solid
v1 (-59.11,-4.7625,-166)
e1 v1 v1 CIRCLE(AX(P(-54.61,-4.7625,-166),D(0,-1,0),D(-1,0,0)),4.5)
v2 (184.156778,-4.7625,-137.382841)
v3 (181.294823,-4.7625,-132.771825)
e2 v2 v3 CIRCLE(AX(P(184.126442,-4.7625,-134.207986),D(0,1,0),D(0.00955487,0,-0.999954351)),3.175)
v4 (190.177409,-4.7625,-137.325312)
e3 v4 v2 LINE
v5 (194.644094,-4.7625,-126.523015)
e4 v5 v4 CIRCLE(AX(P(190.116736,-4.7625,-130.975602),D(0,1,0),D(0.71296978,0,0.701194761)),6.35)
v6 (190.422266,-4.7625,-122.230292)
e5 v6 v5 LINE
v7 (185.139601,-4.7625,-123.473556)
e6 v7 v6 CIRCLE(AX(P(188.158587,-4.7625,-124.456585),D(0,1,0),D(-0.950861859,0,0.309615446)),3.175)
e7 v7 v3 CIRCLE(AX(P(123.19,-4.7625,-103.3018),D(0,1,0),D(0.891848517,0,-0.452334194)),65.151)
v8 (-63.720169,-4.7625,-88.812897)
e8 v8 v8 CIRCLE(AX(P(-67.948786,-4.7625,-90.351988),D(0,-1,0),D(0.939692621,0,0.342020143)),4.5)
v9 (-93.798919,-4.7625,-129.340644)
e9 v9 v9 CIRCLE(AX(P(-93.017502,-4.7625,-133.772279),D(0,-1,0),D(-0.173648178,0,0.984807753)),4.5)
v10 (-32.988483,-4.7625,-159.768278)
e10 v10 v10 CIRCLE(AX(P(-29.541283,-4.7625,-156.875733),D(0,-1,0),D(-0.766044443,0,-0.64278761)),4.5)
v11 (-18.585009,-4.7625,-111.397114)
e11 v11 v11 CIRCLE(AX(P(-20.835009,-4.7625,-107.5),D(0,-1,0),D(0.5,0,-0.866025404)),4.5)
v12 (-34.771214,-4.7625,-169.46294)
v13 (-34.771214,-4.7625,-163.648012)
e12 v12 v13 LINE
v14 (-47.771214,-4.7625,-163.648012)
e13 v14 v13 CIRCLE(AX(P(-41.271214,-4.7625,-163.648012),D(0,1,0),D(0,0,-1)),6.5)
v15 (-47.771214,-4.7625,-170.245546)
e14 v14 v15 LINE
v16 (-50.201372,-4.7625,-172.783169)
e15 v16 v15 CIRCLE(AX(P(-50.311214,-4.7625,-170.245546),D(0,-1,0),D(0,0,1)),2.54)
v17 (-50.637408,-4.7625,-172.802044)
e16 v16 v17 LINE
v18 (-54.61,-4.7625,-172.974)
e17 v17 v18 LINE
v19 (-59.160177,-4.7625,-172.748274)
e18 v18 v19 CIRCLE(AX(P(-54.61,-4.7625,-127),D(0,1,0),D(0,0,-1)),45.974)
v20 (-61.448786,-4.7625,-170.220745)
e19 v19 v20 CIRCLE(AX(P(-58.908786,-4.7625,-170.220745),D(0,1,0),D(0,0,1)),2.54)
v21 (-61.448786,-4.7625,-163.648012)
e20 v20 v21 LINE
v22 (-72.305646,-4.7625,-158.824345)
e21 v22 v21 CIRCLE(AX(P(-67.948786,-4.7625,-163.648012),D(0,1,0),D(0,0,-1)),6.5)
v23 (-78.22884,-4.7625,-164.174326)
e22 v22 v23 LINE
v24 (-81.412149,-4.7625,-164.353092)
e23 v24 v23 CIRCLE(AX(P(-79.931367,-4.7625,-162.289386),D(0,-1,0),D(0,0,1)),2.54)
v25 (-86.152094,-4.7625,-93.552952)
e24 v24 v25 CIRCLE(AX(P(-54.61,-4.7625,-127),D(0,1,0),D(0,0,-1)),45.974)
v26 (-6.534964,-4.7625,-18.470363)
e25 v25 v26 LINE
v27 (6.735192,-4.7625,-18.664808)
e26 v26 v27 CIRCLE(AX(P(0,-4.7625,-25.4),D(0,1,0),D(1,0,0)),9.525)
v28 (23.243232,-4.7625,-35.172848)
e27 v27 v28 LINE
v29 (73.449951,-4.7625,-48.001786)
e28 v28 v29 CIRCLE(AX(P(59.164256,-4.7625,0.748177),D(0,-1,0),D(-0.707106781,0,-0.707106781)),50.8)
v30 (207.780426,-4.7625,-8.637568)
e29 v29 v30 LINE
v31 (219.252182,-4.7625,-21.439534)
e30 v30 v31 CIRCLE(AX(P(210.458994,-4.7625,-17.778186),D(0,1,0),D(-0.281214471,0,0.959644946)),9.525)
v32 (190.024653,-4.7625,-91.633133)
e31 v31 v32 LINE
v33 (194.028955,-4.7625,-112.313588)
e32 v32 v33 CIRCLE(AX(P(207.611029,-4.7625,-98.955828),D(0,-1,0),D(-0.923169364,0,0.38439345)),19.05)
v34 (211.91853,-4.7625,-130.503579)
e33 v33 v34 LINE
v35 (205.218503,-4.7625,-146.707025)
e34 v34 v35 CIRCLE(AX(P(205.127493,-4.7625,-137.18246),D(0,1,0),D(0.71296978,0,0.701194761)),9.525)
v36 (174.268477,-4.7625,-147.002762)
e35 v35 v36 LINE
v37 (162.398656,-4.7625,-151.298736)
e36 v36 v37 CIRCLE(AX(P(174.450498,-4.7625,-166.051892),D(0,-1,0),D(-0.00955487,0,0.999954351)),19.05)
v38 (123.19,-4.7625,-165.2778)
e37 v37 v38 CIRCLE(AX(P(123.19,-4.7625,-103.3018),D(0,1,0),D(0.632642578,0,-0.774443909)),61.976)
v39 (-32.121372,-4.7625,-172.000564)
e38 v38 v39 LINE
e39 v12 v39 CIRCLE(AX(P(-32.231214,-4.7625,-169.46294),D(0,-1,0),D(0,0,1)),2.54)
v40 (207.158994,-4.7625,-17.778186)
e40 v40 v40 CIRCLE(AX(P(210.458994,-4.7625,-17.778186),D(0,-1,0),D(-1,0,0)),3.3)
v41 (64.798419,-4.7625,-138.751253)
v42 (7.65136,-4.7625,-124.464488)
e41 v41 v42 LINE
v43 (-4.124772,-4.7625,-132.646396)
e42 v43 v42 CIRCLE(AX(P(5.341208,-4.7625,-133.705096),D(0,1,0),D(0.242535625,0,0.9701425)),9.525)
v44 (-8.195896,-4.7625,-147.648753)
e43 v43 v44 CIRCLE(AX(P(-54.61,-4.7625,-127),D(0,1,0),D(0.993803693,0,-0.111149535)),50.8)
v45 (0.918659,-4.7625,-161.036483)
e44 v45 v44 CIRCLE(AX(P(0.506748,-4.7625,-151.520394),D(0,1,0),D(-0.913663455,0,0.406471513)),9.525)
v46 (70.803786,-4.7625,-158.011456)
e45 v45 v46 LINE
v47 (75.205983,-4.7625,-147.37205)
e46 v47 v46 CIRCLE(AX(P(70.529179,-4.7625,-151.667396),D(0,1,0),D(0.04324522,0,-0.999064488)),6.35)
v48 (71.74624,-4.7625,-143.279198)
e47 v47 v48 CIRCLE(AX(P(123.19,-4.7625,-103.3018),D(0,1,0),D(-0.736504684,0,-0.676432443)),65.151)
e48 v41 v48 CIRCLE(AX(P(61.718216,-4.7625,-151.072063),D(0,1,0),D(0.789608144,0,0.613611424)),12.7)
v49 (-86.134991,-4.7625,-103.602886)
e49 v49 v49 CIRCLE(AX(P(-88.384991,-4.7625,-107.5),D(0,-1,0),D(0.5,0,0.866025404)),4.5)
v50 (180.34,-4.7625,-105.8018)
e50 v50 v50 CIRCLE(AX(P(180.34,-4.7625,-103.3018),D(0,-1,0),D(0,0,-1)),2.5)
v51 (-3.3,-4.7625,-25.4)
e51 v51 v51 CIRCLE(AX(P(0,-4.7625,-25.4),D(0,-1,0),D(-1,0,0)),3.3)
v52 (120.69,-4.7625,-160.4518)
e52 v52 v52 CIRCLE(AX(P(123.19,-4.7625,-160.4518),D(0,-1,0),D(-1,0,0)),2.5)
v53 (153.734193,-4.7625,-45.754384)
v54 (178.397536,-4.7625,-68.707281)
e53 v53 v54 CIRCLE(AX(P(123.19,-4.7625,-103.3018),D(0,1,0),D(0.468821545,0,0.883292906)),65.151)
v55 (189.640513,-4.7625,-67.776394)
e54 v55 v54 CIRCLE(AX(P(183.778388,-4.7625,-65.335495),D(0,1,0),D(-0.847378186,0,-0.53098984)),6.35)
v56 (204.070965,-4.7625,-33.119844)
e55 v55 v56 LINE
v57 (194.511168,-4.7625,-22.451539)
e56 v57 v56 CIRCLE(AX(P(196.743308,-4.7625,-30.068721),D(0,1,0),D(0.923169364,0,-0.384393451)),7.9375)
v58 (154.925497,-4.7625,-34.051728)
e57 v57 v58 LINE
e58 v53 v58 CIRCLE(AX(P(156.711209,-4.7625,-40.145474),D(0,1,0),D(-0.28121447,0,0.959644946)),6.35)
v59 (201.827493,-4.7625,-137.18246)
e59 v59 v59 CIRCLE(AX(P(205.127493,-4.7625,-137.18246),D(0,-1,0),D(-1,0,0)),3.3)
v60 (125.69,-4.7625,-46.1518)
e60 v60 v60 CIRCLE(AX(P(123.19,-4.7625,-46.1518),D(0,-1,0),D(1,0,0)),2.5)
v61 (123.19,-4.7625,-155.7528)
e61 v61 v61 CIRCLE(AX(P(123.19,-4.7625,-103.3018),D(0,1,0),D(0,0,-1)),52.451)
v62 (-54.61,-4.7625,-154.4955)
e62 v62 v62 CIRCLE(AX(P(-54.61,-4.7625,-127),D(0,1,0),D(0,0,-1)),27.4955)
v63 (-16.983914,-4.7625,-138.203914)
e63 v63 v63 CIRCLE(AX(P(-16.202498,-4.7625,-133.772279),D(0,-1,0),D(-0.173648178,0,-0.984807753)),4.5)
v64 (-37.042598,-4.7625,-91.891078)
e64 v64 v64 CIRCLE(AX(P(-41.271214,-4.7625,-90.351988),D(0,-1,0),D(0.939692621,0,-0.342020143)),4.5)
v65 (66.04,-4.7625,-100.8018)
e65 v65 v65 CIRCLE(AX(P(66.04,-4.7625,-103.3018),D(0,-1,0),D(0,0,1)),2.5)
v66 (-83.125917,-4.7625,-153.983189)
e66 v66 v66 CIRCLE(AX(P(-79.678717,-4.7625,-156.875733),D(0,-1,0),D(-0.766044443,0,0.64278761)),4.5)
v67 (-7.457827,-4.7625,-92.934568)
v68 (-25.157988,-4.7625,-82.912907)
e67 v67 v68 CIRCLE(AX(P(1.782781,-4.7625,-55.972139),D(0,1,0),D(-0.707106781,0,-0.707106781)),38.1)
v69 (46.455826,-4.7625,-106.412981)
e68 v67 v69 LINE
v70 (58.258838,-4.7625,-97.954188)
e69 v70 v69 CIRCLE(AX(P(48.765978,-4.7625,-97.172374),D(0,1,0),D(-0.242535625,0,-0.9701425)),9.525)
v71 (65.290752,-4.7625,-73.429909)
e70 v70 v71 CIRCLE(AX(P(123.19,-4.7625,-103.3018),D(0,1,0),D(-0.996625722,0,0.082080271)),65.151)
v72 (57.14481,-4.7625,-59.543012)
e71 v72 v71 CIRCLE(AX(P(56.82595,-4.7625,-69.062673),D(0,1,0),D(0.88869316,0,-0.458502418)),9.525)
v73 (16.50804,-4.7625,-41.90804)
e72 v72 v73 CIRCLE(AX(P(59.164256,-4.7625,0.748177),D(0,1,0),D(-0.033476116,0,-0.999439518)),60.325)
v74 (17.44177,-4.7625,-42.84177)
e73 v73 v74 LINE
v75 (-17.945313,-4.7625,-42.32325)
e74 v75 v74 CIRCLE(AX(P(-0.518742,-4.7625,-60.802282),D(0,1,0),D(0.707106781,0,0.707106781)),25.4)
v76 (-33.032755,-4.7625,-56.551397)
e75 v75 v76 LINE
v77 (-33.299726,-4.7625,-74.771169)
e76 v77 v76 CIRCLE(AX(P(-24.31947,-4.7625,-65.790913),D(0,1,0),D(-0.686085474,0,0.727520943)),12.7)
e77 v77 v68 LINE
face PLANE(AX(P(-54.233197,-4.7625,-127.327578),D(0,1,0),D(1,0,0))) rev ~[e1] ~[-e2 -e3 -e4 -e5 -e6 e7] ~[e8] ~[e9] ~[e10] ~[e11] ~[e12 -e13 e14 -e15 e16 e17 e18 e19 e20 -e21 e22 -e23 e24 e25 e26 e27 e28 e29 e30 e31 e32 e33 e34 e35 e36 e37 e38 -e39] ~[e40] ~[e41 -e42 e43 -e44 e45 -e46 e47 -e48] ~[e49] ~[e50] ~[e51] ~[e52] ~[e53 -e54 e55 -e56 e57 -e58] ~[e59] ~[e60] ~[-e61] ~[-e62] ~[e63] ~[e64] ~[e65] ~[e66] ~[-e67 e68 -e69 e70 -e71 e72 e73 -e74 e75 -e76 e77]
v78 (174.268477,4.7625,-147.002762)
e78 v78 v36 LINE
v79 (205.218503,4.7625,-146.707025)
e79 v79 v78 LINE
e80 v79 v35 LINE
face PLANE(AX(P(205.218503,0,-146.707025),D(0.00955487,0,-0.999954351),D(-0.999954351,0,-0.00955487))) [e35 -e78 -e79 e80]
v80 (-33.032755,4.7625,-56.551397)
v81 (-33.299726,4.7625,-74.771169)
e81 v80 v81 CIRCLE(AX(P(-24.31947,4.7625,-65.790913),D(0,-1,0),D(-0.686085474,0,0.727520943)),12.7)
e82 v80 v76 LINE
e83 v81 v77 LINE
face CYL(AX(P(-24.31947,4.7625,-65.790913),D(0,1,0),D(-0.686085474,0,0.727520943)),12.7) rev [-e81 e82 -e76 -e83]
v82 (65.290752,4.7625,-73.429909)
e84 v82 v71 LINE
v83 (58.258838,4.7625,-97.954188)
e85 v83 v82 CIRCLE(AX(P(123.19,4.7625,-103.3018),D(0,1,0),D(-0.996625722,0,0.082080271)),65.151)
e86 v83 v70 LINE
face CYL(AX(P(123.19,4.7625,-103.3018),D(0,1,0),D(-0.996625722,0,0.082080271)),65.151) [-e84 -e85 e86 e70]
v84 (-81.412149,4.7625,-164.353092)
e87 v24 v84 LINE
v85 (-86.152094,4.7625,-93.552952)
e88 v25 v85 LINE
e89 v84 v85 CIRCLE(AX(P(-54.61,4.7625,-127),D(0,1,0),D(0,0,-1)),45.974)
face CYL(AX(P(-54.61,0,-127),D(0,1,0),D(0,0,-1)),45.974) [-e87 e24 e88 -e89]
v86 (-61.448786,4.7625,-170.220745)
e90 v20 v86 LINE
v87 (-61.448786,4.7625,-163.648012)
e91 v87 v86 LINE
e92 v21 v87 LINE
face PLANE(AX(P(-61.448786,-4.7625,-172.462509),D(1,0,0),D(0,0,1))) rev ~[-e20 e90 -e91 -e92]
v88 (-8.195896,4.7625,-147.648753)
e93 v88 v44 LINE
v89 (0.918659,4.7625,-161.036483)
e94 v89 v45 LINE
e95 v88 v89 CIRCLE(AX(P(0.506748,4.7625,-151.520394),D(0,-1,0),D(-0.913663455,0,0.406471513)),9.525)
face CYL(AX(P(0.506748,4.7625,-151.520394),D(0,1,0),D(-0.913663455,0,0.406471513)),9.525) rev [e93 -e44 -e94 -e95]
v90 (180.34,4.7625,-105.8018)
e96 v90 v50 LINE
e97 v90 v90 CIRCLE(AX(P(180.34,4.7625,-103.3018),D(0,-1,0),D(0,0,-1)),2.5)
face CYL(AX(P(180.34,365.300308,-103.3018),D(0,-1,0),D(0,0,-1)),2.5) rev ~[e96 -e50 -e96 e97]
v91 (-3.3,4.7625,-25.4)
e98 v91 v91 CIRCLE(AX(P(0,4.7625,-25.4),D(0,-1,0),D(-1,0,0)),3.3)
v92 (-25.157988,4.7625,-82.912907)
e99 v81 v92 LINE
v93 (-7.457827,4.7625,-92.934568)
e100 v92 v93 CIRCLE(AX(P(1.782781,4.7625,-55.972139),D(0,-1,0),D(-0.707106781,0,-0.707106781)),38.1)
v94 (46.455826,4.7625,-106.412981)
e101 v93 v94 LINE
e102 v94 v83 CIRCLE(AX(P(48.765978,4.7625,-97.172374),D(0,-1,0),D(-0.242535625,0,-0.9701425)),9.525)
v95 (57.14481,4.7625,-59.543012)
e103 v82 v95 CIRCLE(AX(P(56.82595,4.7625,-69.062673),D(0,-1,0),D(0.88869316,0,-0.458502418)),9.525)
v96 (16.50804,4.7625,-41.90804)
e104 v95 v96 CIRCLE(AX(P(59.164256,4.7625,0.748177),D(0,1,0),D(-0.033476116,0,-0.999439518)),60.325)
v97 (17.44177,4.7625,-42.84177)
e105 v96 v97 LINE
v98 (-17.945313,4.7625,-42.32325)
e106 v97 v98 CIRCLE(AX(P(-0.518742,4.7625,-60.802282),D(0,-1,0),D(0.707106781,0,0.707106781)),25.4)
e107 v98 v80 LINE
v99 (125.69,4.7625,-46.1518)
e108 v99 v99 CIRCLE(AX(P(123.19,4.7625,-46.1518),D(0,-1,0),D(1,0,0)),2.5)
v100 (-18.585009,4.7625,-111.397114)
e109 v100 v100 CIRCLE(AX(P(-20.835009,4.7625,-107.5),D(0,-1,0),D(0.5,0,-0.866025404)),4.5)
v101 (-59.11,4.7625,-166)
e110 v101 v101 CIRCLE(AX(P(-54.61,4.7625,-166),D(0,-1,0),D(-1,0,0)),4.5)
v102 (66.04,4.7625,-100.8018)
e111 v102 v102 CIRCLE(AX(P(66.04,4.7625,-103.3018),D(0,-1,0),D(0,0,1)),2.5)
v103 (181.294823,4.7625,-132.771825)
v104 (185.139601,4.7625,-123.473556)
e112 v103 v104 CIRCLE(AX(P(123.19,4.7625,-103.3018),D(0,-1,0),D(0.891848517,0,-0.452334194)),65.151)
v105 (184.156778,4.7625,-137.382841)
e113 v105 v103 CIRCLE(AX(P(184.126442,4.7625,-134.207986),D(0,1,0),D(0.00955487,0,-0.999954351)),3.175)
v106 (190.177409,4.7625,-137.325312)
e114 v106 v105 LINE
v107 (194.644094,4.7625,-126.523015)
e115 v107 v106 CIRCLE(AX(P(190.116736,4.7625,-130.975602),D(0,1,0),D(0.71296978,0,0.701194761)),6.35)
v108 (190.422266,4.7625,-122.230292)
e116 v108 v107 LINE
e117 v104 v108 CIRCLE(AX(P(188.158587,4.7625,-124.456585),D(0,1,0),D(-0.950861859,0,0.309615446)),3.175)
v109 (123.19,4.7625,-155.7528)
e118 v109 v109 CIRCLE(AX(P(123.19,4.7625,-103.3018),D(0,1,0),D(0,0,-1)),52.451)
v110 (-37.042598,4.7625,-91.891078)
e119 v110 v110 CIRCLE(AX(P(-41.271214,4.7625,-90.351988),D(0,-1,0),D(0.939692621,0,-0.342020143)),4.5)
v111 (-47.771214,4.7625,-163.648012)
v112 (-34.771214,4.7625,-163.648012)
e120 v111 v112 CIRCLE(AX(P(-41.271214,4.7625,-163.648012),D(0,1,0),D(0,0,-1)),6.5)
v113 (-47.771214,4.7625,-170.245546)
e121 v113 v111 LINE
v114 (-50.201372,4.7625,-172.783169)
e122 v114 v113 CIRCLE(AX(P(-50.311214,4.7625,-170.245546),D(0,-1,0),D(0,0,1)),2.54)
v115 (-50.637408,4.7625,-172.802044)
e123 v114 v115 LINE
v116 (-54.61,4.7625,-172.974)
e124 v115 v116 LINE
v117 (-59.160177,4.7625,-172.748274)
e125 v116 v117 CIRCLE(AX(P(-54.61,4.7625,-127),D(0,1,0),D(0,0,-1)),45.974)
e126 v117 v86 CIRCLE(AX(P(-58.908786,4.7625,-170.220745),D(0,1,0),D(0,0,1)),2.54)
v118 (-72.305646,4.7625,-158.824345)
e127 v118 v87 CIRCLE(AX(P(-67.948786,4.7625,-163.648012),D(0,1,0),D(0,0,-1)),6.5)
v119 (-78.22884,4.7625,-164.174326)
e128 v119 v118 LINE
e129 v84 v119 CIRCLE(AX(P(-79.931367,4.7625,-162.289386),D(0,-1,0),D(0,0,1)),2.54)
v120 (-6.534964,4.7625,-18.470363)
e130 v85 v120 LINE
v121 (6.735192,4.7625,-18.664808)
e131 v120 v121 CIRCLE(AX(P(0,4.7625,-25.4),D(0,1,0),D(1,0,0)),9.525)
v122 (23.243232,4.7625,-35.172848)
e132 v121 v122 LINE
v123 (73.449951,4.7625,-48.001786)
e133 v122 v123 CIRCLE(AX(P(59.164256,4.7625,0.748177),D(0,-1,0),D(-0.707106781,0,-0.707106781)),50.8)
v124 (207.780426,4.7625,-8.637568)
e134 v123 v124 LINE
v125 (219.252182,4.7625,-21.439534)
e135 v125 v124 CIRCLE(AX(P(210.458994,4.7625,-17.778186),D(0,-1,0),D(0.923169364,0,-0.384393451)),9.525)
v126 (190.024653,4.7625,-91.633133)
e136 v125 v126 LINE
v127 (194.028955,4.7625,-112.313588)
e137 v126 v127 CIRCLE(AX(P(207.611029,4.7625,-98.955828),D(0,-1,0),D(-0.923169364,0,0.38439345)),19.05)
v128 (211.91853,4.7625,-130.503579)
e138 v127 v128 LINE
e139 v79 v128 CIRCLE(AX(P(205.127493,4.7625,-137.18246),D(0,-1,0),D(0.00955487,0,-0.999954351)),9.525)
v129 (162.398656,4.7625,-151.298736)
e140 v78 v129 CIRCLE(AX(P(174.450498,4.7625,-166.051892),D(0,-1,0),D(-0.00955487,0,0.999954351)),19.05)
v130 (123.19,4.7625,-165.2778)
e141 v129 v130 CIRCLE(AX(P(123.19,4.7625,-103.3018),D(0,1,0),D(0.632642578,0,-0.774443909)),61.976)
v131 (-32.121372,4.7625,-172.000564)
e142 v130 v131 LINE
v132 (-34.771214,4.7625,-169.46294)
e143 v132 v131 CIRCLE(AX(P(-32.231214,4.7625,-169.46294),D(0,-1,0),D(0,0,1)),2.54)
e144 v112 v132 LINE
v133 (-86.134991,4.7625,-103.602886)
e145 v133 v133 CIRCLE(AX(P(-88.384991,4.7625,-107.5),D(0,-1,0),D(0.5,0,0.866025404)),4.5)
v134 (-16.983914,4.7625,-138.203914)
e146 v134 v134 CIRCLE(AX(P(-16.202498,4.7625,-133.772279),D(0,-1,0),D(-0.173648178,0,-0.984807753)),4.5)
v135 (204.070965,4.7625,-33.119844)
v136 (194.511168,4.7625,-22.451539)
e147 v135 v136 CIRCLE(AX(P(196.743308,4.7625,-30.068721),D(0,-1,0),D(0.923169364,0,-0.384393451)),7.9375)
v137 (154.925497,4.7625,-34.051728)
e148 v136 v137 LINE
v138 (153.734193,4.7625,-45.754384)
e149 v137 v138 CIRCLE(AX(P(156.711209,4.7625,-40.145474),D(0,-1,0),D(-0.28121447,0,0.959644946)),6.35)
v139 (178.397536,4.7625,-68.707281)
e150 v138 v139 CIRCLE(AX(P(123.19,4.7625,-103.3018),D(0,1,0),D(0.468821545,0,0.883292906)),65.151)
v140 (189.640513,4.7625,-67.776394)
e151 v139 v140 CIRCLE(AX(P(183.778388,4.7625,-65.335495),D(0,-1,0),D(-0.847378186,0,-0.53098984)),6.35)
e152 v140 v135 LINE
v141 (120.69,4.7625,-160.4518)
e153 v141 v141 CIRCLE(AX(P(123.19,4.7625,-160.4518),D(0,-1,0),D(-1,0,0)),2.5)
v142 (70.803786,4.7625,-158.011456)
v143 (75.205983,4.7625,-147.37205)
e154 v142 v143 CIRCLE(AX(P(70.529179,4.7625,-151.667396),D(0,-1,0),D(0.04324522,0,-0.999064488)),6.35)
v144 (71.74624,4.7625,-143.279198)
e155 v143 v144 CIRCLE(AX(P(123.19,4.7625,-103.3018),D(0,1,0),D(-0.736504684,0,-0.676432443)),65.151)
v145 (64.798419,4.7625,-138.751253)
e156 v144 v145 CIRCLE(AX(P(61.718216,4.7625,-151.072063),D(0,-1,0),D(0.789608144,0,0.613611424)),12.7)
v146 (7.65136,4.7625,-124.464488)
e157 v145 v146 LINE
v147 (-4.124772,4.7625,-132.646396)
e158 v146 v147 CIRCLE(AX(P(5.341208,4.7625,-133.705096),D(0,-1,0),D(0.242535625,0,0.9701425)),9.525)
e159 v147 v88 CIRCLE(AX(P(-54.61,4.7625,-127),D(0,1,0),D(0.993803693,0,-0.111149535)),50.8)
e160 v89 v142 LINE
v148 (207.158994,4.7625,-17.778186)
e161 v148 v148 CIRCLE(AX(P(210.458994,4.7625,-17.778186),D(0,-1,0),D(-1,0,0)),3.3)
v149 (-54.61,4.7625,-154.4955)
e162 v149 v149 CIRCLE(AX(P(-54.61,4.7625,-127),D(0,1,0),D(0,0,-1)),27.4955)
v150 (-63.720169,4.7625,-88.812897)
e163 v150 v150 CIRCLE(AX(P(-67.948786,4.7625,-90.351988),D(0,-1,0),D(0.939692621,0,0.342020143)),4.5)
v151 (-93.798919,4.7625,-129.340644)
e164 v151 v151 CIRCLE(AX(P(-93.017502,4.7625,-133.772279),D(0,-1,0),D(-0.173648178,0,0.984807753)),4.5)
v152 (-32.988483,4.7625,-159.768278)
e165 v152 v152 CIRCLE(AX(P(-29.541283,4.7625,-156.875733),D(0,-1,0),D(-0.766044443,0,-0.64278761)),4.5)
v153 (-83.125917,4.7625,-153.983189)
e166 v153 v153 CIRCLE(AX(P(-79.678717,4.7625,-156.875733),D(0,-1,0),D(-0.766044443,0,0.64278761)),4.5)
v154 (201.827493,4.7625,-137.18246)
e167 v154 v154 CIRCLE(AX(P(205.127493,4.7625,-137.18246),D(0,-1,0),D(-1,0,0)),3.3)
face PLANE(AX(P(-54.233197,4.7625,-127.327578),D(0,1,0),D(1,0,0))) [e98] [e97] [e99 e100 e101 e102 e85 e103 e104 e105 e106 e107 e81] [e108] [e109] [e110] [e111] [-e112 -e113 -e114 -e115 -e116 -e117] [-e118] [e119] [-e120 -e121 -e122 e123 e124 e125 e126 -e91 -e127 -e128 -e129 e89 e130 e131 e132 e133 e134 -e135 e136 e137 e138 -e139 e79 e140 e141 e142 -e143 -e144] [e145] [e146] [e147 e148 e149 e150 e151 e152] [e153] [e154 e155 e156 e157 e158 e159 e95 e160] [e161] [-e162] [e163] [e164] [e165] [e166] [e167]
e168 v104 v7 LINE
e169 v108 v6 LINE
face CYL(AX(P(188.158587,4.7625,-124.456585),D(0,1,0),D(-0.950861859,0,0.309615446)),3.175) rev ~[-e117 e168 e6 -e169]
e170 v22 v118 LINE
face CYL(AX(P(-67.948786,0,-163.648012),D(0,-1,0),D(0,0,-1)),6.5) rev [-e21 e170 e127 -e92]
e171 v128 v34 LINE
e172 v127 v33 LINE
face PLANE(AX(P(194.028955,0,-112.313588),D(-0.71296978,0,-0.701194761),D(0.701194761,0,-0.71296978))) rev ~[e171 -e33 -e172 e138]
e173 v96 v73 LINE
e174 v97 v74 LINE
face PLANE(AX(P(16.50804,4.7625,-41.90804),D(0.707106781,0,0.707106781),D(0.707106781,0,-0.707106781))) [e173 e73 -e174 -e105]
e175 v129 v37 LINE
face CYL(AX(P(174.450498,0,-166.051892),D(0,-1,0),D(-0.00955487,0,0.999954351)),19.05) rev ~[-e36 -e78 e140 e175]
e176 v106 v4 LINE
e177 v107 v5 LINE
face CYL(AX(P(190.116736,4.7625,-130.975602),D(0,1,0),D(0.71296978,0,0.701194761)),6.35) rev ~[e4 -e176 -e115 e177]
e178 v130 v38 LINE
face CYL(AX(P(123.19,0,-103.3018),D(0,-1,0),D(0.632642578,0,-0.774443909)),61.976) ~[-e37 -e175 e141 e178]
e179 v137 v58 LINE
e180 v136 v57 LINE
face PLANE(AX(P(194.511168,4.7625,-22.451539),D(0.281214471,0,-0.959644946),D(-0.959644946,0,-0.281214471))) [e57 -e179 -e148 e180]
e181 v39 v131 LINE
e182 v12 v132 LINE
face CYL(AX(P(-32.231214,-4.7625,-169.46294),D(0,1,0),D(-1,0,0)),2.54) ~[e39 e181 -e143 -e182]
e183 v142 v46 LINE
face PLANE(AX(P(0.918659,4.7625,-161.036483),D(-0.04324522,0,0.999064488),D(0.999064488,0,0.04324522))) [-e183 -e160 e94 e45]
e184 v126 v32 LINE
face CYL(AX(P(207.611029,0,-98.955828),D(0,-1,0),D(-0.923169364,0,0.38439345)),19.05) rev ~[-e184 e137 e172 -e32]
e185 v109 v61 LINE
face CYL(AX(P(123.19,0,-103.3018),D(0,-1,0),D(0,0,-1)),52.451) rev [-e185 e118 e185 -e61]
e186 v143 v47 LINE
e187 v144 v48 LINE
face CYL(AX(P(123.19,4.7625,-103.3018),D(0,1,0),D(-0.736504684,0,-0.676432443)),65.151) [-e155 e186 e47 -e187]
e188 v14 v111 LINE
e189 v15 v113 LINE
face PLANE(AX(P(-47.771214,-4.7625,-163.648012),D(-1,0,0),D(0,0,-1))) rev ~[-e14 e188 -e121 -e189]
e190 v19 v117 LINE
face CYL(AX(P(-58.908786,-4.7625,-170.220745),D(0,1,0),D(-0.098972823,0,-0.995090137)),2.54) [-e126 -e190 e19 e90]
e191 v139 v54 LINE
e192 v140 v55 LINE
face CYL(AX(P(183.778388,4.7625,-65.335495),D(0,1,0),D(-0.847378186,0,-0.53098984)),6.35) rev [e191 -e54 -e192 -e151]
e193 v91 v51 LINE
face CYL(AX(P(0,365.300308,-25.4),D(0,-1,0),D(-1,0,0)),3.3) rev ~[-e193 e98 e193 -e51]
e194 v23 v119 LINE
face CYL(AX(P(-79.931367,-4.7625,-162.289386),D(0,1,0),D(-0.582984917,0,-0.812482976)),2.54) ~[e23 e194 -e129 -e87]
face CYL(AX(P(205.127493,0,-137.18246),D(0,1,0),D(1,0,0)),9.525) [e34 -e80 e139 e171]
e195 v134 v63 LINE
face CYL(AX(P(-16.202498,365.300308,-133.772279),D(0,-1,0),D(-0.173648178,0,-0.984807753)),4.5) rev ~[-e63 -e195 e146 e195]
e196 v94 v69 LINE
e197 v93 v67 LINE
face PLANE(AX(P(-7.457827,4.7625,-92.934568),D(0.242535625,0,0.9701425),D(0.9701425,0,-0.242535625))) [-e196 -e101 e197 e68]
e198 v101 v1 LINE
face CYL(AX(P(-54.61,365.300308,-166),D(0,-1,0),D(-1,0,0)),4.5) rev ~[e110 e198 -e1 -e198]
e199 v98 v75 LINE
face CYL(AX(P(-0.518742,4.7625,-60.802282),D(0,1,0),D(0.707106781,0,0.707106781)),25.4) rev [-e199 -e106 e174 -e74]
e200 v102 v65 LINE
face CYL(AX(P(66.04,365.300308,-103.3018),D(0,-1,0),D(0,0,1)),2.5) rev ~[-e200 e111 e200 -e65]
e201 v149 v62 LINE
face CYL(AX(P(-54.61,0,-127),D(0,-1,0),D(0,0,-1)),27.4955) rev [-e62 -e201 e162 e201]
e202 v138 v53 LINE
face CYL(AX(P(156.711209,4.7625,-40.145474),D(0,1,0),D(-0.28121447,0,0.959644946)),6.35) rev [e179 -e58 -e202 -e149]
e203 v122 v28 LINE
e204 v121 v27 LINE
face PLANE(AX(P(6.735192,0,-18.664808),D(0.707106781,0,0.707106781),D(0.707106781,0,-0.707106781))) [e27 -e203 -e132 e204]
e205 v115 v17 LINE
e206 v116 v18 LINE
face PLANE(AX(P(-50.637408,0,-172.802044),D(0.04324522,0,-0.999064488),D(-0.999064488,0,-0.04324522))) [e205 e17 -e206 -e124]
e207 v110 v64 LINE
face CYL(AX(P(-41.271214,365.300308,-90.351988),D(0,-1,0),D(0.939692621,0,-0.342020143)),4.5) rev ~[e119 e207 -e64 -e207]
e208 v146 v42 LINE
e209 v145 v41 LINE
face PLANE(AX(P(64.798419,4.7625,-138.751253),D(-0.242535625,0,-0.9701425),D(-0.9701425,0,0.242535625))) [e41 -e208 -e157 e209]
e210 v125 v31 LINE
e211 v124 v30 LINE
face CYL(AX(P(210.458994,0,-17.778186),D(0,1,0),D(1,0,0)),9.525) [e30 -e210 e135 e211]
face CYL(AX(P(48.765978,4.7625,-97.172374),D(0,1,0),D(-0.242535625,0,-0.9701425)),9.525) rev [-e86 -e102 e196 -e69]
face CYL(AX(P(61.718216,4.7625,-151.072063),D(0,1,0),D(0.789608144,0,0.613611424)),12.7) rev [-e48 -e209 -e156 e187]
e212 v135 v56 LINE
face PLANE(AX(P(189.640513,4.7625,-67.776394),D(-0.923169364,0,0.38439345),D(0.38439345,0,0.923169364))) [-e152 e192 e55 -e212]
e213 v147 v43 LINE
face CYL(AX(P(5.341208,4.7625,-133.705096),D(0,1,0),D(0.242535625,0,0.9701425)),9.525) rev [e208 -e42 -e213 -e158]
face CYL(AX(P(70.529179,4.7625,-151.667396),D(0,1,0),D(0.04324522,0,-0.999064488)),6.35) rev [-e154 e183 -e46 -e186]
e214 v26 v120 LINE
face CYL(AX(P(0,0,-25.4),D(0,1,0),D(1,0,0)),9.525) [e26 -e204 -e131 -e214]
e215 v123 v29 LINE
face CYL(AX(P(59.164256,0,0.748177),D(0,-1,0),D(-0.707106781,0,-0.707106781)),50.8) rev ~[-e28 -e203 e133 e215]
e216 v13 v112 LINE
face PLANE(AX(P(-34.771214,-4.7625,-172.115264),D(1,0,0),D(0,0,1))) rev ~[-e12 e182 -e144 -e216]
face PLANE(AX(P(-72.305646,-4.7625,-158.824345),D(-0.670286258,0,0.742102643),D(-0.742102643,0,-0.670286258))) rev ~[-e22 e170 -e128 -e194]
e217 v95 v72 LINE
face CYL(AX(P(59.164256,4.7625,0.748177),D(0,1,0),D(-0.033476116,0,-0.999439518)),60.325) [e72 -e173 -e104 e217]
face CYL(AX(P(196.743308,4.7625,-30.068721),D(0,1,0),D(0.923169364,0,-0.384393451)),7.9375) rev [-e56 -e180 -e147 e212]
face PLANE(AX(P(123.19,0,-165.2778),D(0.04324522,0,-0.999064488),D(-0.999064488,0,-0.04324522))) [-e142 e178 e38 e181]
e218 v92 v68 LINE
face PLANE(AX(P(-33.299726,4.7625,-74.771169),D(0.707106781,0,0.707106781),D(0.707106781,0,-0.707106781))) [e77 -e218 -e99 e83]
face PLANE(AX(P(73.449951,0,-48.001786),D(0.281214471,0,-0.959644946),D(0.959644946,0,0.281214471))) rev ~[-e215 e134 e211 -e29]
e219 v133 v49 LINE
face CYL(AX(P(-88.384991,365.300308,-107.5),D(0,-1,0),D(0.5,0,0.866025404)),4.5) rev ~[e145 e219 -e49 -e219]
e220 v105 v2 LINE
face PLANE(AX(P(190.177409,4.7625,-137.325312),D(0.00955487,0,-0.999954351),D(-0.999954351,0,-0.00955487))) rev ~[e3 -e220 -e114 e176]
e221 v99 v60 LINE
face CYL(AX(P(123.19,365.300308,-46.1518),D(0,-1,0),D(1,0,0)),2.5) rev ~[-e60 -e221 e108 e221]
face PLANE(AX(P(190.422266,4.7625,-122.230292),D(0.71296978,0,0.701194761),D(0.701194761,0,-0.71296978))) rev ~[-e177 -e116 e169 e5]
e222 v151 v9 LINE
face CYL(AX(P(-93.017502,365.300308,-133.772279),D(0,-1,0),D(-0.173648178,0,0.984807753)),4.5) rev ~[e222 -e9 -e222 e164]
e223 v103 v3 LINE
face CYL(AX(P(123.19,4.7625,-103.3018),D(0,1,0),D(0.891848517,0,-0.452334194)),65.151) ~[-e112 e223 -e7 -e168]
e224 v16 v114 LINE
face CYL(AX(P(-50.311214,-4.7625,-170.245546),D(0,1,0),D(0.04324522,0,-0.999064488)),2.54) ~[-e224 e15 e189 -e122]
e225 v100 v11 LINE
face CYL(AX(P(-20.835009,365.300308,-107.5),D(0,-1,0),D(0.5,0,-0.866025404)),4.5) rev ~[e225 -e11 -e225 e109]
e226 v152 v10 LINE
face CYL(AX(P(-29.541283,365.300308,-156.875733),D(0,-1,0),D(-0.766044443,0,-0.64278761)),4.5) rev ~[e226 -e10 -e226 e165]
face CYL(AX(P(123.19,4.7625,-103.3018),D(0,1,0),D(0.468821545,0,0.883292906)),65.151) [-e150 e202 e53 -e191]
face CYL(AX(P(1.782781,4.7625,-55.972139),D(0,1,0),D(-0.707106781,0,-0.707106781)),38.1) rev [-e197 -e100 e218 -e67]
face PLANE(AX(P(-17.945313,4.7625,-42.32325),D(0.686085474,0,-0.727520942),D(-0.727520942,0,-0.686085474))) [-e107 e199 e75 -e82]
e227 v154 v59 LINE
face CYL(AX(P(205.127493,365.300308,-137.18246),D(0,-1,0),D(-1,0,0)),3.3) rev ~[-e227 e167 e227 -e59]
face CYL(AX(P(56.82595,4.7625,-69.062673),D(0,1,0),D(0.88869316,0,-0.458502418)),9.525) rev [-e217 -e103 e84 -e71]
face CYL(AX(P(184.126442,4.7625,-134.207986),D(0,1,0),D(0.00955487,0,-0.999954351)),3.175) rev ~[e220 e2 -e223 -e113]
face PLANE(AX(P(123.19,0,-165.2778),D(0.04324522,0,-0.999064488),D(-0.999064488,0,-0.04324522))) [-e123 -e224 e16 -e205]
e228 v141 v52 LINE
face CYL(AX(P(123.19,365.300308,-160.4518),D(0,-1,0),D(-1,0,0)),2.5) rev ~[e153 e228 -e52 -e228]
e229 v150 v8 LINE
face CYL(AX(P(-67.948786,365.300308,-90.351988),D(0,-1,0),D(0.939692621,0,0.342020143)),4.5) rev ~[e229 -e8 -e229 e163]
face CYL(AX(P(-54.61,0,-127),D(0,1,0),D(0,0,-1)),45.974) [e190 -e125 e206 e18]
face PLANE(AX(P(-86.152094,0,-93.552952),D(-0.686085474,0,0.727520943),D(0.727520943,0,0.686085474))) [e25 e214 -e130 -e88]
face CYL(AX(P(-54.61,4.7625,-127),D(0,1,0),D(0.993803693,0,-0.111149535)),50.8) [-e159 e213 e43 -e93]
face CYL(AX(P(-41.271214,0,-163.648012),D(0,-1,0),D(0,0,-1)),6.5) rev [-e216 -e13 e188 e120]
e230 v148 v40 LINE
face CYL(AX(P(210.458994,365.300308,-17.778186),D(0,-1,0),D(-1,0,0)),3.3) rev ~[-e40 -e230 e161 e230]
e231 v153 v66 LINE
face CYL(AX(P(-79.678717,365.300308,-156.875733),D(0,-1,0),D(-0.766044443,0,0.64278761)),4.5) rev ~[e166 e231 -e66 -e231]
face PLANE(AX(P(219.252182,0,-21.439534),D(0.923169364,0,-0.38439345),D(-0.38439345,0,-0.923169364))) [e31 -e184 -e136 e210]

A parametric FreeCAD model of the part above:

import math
import FreeCAD as App
import Part
import Sketcher
Q = App.Units.Quantity


def edges_at(feature, points):
    """Names of the edges that pass closest to the given points."""
    edges = feature.Shape.Edges
    near = lambda p: min(range(len(edges)), key=lambda i: edges[i].distToShape(Part.Vertex(*p))[0])
    return sorted({f"Edge{near(p) + 1}" for p in points})

doc = App.newDocument("Part")
body = doc.addObject("PartDesign::Body", "Body")

sketch1 = body.newObject("Sketcher::SketchObject", "Sketch")
sketch1.AttachmentSupport = (doc.getObject("XZ_Plane"), [""])
sketch1.MapMode = "FlatFace"
sketch1.addGeometry([
    Part.LineSegment(App.Vector(-86.2, -93.6, 0), App.Vector(-6.5, -18.5, 0)),
    Part.ArcOfCircle(Part.Circle(App.Vector(0, -25.4, 0), App.Vector(0, 0, 1), 9.5), math.radians(45), math.radians(133)),
    Part.LineSegment(App.Vector(6.7, -18.7, 0), App.Vector(23.2, -35.2, 0)),
    Part.ArcOfCircle(Part.Circle(App.Vector(59.2, 0.7, 0), App.Vector(0, 0, 1), 50.8), math.radians(-135), math.radians(-74)),
    Part.LineSegment(App.Vector(73.4, -48, 0), App.Vector(207.8, -8.6, 0)),
    Part.ArcOfCircle(Part.Circle(App.Vector(210.5, -17.8, 0), App.Vector(0, 0, 1), 9.5), math.radians(-23), math.radians(106)),
    Part.LineSegment(App.Vector(219.3, -21.4, 0), App.Vector(190, -91.6, 0)),
    Part.ArcOfCircle(Part.Circle(App.Vector(207.6, -99, 0), App.Vector(0, 0, 1), 19.1), math.radians(157), math.radians(225)),
    Part.LineSegment(App.Vector(194, -112.3, 0), App.Vector(211.9, -130.5, 0)),
    Part.ArcOfCircle(Part.Circle(App.Vector(205.1, -137.2, 0), App.Vector(0, 0, 1), 9.5), math.radians(-89), math.radians(45)),
    Part.LineSegment(App.Vector(205.2, -146.7, 0), App.Vector(174.3, -147, 0)),
    Part.ArcOfCircle(Part.Circle(App.Vector(174.5, -166.1, 0), App.Vector(0, 0, 1), 19), math.radians(91), math.radians(129)),
    Part.ArcOfCircle(Part.Circle(App.Vector(123.2, -103.3, 0), App.Vector(0, 0, 1), 62), math.radians(-90), math.radians(-51)),
    Part.LineSegment(App.Vector(123.2, -165.3, 0), App.Vector(-50.6, -172.8, 0)),
    Part.LineSegment(App.Vector(-50.6, -172.8, 0), App.Vector(-54.6, -173, 0)),
    Part.ArcOfCircle(Part.Circle(App.Vector(-54.6, -127, 0), App.Vector(0, 0, 1), 46), math.radians(133), math.radians(270)),
    Part.Circle(App.Vector(123.2, -103.3, 0), App.Vector(0, 0, 1), 52.5),
    Part.Circle(App.Vector(-41.3, -163.6, 0), App.Vector(0, 0, 1), 6.5),
    Part.Circle(App.Vector(-67.9, -163.6, 0), App.Vector(0, 0, 1), 6.5),
    Part.Circle(App.Vector(-54.6, -127, 0), App.Vector(0, 0, 1), 27.5),
], False)
sketch1.addConstraint([
    Sketcher.Constraint("Tangent", 0, 2, 1, 2),
    Sketcher.Constraint("Tangent", 1, 1, 2, 1),
    Sketcher.Constraint("Tangent", 2, 2, 3, 1),
    Sketcher.Constraint("Tangent", 3, 2, 4, 1),
    Sketcher.Constraint("Tangent", 4, 2, 5, 2),
    Sketcher.Constraint("Tangent", 5, 1, 6, 1),
    Sketcher.Constraint("Tangent", 6, 2, 7, 1),
    Sketcher.Constraint("Tangent", 7, 2, 8, 1),
    Sketcher.Constraint("Tangent", 8, 2, 9, 2),
    Sketcher.Constraint("Tangent", 9, 1, 10, 1),
    Sketcher.Constraint("Tangent", 10, 2, 11, 1),
    Sketcher.Constraint("Tangent", 11, 2, 12, 2),
    Sketcher.Constraint("Coincident", 12, 1, 13, 1),
    Sketcher.Constraint("Coincident", 13, 2, 14, 1),
    Sketcher.Constraint("Coincident", 14, 2, 15, 2),
    Sketcher.Constraint("Tangent", 15, 1, 0, 1),
    Sketcher.Constraint("Coincident", 16, 3, 12, 3),
    Sketcher.Constraint("Coincident", 19, 3, 15, 3),
    Sketcher.Constraint("Equal", 1, 5),
    Sketcher.Constraint("Equal", 5, 9),
    Sketcher.Constraint("Equal", 7, 11),
    Sketcher.Constraint("Equal", 17, 18),
    Sketcher.Constraint("PointOnObject", 1, 3, -2),
    Sketcher.Constraint("Parallel", 13, 14),
    Sketcher.Constraint("Horizontal", 17, 3, 18, 3),
    Sketcher.Constraint("Vertical", 16, 3, 12, 1),
    Sketcher.Constraint("Vertical", 19, 3, 14, 2),
    Sketcher.Constraint("Radius", 3, Q("2 in")),
    Sketcher.Constraint("Diameter", 16, Q("4.13 in")),
    Sketcher.Constraint("Radius", 7, Q("0.75 in")),
    Sketcher.Constraint("Radius", 12, Q("2.44 in")),
    Sketcher.Constraint("Radius", 15, Q("1.81 in")),
    Sketcher.Constraint("Diameter", 19, Q("2.165 in")),
    Sketcher.Constraint("DistanceY", 1, 3, -1, 1, Q("1 in")),
    Sketcher.Constraint("DistanceY", 15, 3, -1, 1, Q("5 in")),
    Sketcher.Constraint("Angle", 2, Q("-45 deg")),
    Sketcher.Constraint("Radius", 1, Q("0.375 in")),
    Sketcher.Constraint("DistanceX", 15, 3, 12, 3, Q("7 in")),
    Sketcher.Constraint("Diameter", 17, Q("13 mm")),
    Sketcher.Constraint("DistanceX", -1, 1, 12, 3, Q("4.85 in")),
    Sketcher.Constraint("DistanceY", 12, 3, -1, 1, Q("4.067 in")),
    Sketcher.Constraint("DistanceX", 6, 2, 9, 3, Q("0.5946 in")),
    Sketcher.Constraint("DistanceX", 9, 3, 5, 3, Q("5.331501 mm")),
    Sketcher.Constraint("DistanceX", 7, 3, 8, 2, Q("4.307501 mm")),
    Sketcher.Constraint("DistanceX", 11, 2, 7, 2, Q("31.630298 mm")),
    Sketcher.Constraint("Distance", 4, Q("139.979349 mm")),
    Sketcher.Constraint("Distance", 6, Q("76.035451 mm")),
    Sketcher.Constraint("Distance", 10, Q("30.951438 mm")),
    Sketcher.Constraint("Distance", 13, Q("173.990178 mm")),
    Sketcher.Constraint("DistanceX", -1, 1, 7, 3, Q("207.611029 mm")),
    Sketcher.Constraint("DistanceX", 17, 3, 3, 3, Q("100.435471 mm")),
    Sketcher.Constraint("DistanceY", 17, 3, 3, 3, Q("164.396189 mm")),
    Sketcher.Constraint("DistanceX", 18, 3, 17, 3, Q("26.677571 mm")),
])
pad1 = body.newObject("PartDesign::Pad", "Pad")
pad1.Profile = sketch1
pad1.Length = Q("0.375 in")
pad1.Midplane = True

sketch2 = body.newObject("Sketcher::SketchObject", "Sketch001")
sketch2.AttachmentSupport = (doc.getObject("XZ_Plane"), [""])
sketch2.MapMode = "FlatFace"
sketch2.AttachmentOffset = App.Placement(App.Vector(0, 0, -0.1875 * 25.4), App.Rotation())
sketch2.addGeometry(Part.Circle(App.Vector(123.2, -160.5, 0), App.Vector(0, 0, 1), 2.5), False)
sketch2.addConstraint([
    Sketcher.Constraint("Diameter", 0, Q("5 mm")),
    Sketcher.Constraint("DistanceX", -1, 1, 0, 3, Q("4.85 in")),
    Sketcher.Constraint("DistanceY", 0, 3, -1, 1, Q("6.317 in")),
])
doc.recompute()
hole = body.newObject("PartDesign::Hole", "Hole")
hole.Profile = sketch2
hole.ThreadType = "None"
hole.Diameter = 5
hole.DepthType = "ThroughAll"
hole.Reversed = True
doc.recompute()

datumline = body.newObject("PartDesign::Line", "DatumLine")
datumline.Placement = App.Placement(App.Vector(123.19, 0, -103.3018), App.Rotation(App.Vector(0, 0, 1), App.Vector(0, 1, 0)))
polarpattern = body.newObject("PartDesign::PolarPattern", "PolarPattern")
polarpattern.Originals = [hole]
polarpattern.Axis = (datumline, [""])
polarpattern.Angle = 360
polarpattern.Occurrences = 4
body.Tip = polarpattern

sketch3 = body.newObject("Sketcher::SketchObject", "Sketch002")
sketch3.AttachmentSupport = (doc.getObject("XZ_Plane"), [""])
sketch3.MapMode = "FlatFace"
sketch3.AttachmentOffset = App.Placement(App.Vector(0, 0, -0.1875 * 25.4), App.Rotation())
sketch3.addGeometry([
    Part.Circle(App.Vector(205.1, -137.2, 0), App.Vector(0, 0, 1), 3.3),
    Part.Circle(App.Vector(210.5, -17.8, 0), App.Vector(0, 0, 1), 3.3),
    Part.Circle(App.Vector(0, -25.4, 0), App.Vector(0, 0, 1), 3.3),
], False)
sketch3.addConstraint([
    Sketcher.Constraint("Equal", 0, 1),
    Sketcher.Constraint("Equal", 1, 2),
    Sketcher.Constraint("PointOnObject", 2, 3, -2),
    Sketcher.Constraint("DistanceY", 2, 3, -1, 1, Q("1 in")),
    Sketcher.Constraint("Diameter", 0, Q("6.6 mm")),
    Sketcher.Constraint("DistanceX", 0, 3, 1, 3, Q("5.331501 mm")),
    Sketcher.Constraint("DistanceY", 0, 3, -1, 1, Q("137.18246 mm")),
    Sketcher.Constraint("DistanceX", -1, 1, 0, 3, Q("205.127493 mm")),
    Sketcher.Constraint("DistanceY", 1, 3, -1, 1, Q("17.778186 mm")),
])
doc.recompute()
hole2 = body.newObject("PartDesign::Hole", "Hole001")
hole2.Profile = sketch3
hole2.ThreadType = "None"
hole2.Diameter = 6.6
hole2.DepthType = "ThroughAll"
hole2.Reversed = True

sketch4 = body.newObject("Sketcher::SketchObject", "Sketch003")
sketch4.AttachmentSupport = (doc.getObject("XZ_Plane"), [""])
sketch4.MapMode = "FlatFace"
sketch4.AttachmentOffset = App.Placement(App.Vector(0, 0, -0.1875 * 25.4), App.Rotation())
sketch4.addGeometry(Part.Circle(App.Vector(-54.6, -166, 0), App.Vector(0, 0, 1), 4.5), False)
sketch4.addConstraint([
    Sketcher.Constraint("Diameter", 0, Q("9 mm")),
    Sketcher.Constraint("DistanceX", 0, 3, -1, 1, Q("2.15 in")),
    Sketcher.Constraint("DistanceY", 0, 3, -1, 1, Q("166 mm")),
])
doc.recompute()
hole3 = body.newObject("PartDesign::Hole", "Hole002")
hole3.Profile = sketch4
hole3.ThreadType = "None"
hole3.Diameter = 9
hole3.DepthType = "ThroughAll"
hole3.Reversed = True
doc.recompute()

datumline2 = body.newObject("PartDesign::Line", "DatumLine001")
datumline2.Placement = App.Placement(App.Vector(-54.61, 0, -127), App.Rotation(App.Vector(0, 0, 1), App.Vector(0, 1, 0)))
polarpattern2 = body.newObject("PartDesign::PolarPattern", "PolarPattern001")
polarpattern2.Originals = [hole3]
polarpattern2.Axis = (datumline2, [""])
polarpattern2.Angle = 360
polarpattern2.Occurrences = 9
body.Tip = polarpattern2

sketch5 = body.newObject("Sketcher::SketchObject", "Sketch004")
sketch5.AttachmentSupport = (doc.getObject("XZ_Plane"), [""])
sketch5.MapMode = "FlatFace"
sketch5.AttachmentOffset = App.Placement(App.Vector(0, 0, -0.1875 * 25.4), App.Rotation())
sketch5.addGeometry([
    Part.ArcOfCircle(Part.Circle(App.Vector(-0.518742, -60.802282, 0), App.Vector(0, 0, 1), 25.4), math.radians(45), math.radians(133.321033)),
    Part.LineSegment(App.Vector(17.44177, -42.84177, 0), App.Vector(16.50804, -41.90804, 0)),
    Part.ArcOfCircle(Part.Circle(App.Vector(59.164256, 0.748177, 0), App.Vector(0, 0, 1), 60.325), math.radians(-135), math.radians(-91.918399)),
    Part.ArcOfCircle(Part.Circle(App.Vector(56.82595, -69.062673, 0), App.Vector(0, 0, 1), 9.525), math.radians(-27.290513), math.radians(88.081601)),
    Part.ArcOfCircle(Part.Circle(App.Vector(123.19, -103.3018, 0), App.Vector(0, 0, 1), 65.151), math.radians(152.709487), math.radians(175.29185)),
    Part.ArcOfCircle(Part.Circle(App.Vector(48.765978, -97.172374, 0), App.Vector(0, 0, 1), 9.525), math.radians(-104.036243), math.radians(-4.70815)),
    Part.LineSegment(App.Vector(46.455826, -106.412981, 0), App.Vector(-7.457827, -92.934568, 0)),
    Part.ArcOfCircle(Part.Circle(App.Vector(1.782781, -55.972139, 0), App.Vector(0, 0, 1), 38.1), math.radians(-135), math.radians(-104.036243)),
    Part.LineSegment(App.Vector(-25.157988, -82.912907, 0), App.Vector(-33.299726, -74.771169, 0)),
    Part.ArcOfCircle(Part.Circle(App.Vector(-24.31947, -65.790913, 0), App.Vector(0, 0, 1), 12.7), math.radians(133.321033), math.radians(225)),
    Part.LineSegment(App.Vector(-33.032755, -56.551397, 0), App.Vector(-17.945313, -42.32325, 0)),
    Part.ArcOfCircle(Part.Circle(App.Vector(70.529179, -151.667396, 0), App.Vector(0, 0, 1), 6.35), math.radians(-87.521458), math.radians(42.565487)),
    Part.LineSegment(App.Vector(70.803786, -158.011456, 0), App.Vector(0.918659, -161.036483, 0)),
    Part.ArcOfCircle(Part.Circle(App.Vector(0.506748, -151.520394, 0), App.Vector(0, 0, 1), 9.525), math.radians(156.016627), math.radians(272.478542)),
    Part.ArcOfCircle(Part.Circle(App.Vector(-54.61, -127, 0), App.Vector(0, 0, 1), 50.8), math.radians(-23.983373), math.radians(-6.381585)),
    Part.ArcOfCircle(Part.Circle(App.Vector(5.341208, -133.705096, 0), App.Vector(0, 0, 1), 9.525), math.radians(75.963757), math.radians(173.618415)),
    Part.LineSegment(App.Vector(7.65136, -124.464488, 0), App.Vector(64.798419, -138.751253, 0)),
    Part.ArcOfCircle(Part.Circle(App.Vector(61.718216, -151.072063, 0), App.Vector(0, 0, 1), 12.7), math.radians(37.851093), math.radians(75.963757)),
    Part.ArcOfCircle(Part.Circle(App.Vector(123.19, -103.3018, 0), App.Vector(0, 0, 1), 65.151), math.radians(-142.148907), math.radians(-137.434513)),
    Part.ArcOfCircle(Part.Circle(App.Vector(123.19, -103.3018, 0), App.Vector(0, 0, 1), 65.151), math.radians(32.072359), math.radians(62.042172)),
    Part.ArcOfCircle(Part.Circle(App.Vector(156.711209, -40.145474, 0), App.Vector(0, 0, 1), 6.35), math.radians(106.332701), math.radians(242.042172)),
    Part.LineSegment(App.Vector(154.925497, -34.051728, 0), App.Vector(194.511168, -22.451539, 0)),
    Part.ArcOfCircle(Part.Circle(App.Vector(196.743308, -30.068721, 0), App.Vector(0, 0, 1), 7.9375), math.radians(-22.60609), math.radians(106.332701)),
    Part.LineSegment(App.Vector(204.070965, -33.119844, 0), App.Vector(189.640513, -67.776394, 0)),
    Part.ArcOfCircle(Part.Circle(App.Vector(183.778388, -65.335495, 0), App.Vector(0, 0, 1), 6.35), math.radians(-147.927641), math.radians(-22.60609)),
    Part.LineSegment(App.Vector(190.422266, -122.230292, 0), App.Vector(194.644094, -126.523015, 0)),
    Part.ArcOfCircle(Part.Circle(App.Vector(190.116736, -130.975602, 0), App.Vector(0, 0, 1), 6.35), math.radians(-89.452538), math.radians(44.522939)),
    Part.LineSegment(App.Vector(190.177409, -137.325312, 0), App.Vector(184.156778, -137.382841, 0)),
    Part.ArcOfCircle(Part.Circle(App.Vector(184.126442, -134.207986, 0), App.Vector(0, 0, 1), 3.175), math.radians(153.106458), math.radians(270.547462)),
    Part.ArcOfCircle(Part.Circle(App.Vector(123.19, -103.3018, 0), App.Vector(0, 0, 1), 65.151), math.radians(-26.893542), math.radians(-18.036057)),
    Part.ArcOfCircle(Part.Circle(App.Vector(188.158587, -124.456585, 0), App.Vector(0, 0, 1), 3.175), math.radians(44.522939), math.radians(161.963943)),
], False)
sketch5.addConstraint([
    Sketcher.Constraint("Coincident", 0, 1, 1, 1),
    Sketcher.Constraint("Coincident", 1, 2, 2, 1),
    Sketcher.Constraint("Coincident", 2, 2, 3, 2),
    Sketcher.Constraint("Coincident", 3, 1, 4, 1),
    Sketcher.Constraint("Coincident", 4, 2, 5, 2),
    Sketcher.Constraint("Coincident", 5, 1, 6, 1),
    Sketcher.Constraint("Coincident", 6, 2, 7, 2),
    Sketcher.Constraint("Coincident", 7, 1, 8, 1),
    Sketcher.Constraint("Coincident", 8, 2, 9, 2),
    Sketcher.Constraint("Coincident", 9, 1, 10, 1),
    Sketcher.Constraint("Coincident", 10, 2, 0, 2),
    Sketcher.Constraint("Coincident", 11, 1, 12, 1),
    Sketcher.Constraint("Coincident", 12, 2, 13, 2),
    Sketcher.Constraint("Coincident", 13, 1, 14, 1),
    Sketcher.Constraint("Coincident", 14, 2, 15, 2),
    Sketcher.Constraint("Coincident", 15, 1, 16, 1),
    Sketcher.Constraint("Coincident", 16, 2, 17, 2),
    Sketcher.Constraint("Coincident", 17, 1, 18, 1),
    Sketcher.Constraint("Coincident", 18, 2, 11, 2),
    Sketcher.Constraint("Coincident", 19, 2, 20, 2),
    Sketcher.Constraint("Coincident", 20, 1, 21, 1),
    Sketcher.Constraint("Coincident", 21, 2, 22, 2),
    Sketcher.Constraint("Coincident", 22, 1, 23, 1),
    Sketcher.Constraint("Coincident", 23, 2, 24, 2),
    Sketcher.Constraint("Coincident", 24, 1, 19, 1),
    Sketcher.Constraint("Coincident", 25, 2, 26, 2),
    Sketcher.Constraint("Coincident", 26, 1, 27, 1),
    Sketcher.Constraint("Coincident", 27, 2, 28, 2),
    Sketcher.Constraint("Coincident", 28, 1, 29, 1),
    Sketcher.Constraint("Coincident", 29, 2, 30, 2),
    Sketcher.Constraint("Coincident", 30, 1, 25, 1),
    Sketcher.Constraint("Coincident", 18, 3, 4, 3),
    Sketcher.Constraint("Coincident", 19, 3, 4, 3),
    Sketcher.Constraint("Coincident", 29, 3, 4, 3),
    Sketcher.Constraint("Radius", 0, Q("1 in")),
    Sketcher.Constraint("Radius", 14, Q("2 in")),
    Sketcher.Constraint("Radius", 7, Q("1.5 in")),
    Sketcher.Constraint("Radius", 9, Q("0.5 in")),
    Sketcher.Constraint("Radius", 17, Q("0.5 in")),
    Sketcher.Constraint("Radius", 11, Q("0.25 in")),
    Sketcher.Constraint("Radius", 20, Q("0.25 in")),
    Sketcher.Constraint("Radius", 24, Q("0.25 in")),
    Sketcher.Constraint("Radius", 26, Q("0.25 in")),
    Sketcher.Constraint("DistanceY", 14, 3, -1, 1, Q("5 in")),
    Sketcher.Constraint("Radius", 2, Q("2.375 in")),
    Sketcher.Constraint("Radius", 3, Q("0.375 in")),
    Sketcher.Constraint("Radius", 4, Q("2.565 in")),
    Sketcher.Constraint("Radius", 5, Q("0.375 in")),
    Sketcher.Constraint("Radius", 13, Q("0.375 in")),
    Sketcher.Constraint("Radius", 15, Q("0.375 in")),
    Sketcher.Constraint("Radius", 18, Q("2.565 in")),
    Sketcher.Constraint("Radius", 19, Q("2.565 in")),
    Sketcher.Constraint("Radius", 22, Q("0.3125 in")),
    Sketcher.Constraint("Radius", 28, Q("0.125 in")),
    Sketcher.Constraint("Radius", 29, Q("2.565 in")),
    Sketcher.Constraint("Radius", 30, Q("0.125 in")),
    Sketcher.Constraint("DistanceX", -1, 1, 4, 3, Q("4.85 in")),
    Sketcher.Constraint("DistanceX", 14, 3, -1, 1, Q("2.15 in")),
    Sketcher.Constraint("DistanceY", 4, 3, -1, 1, Q("4.067 in")),
    Sketcher.Constraint("DistanceY", 12, 2, 17, 3, Q("0.3923 in")),
    Sketcher.Constraint("DistanceX", -1, 1, 29, 2, Q("185.139601 mm")),
    Sketcher.Constraint("DistanceX", 0, 3, 2, 3, Q("59.682999 mm")),
    Sketcher.Constraint("DistanceY", 5, 3, 3, 3, Q("28.1097 mm")),
    Sketcher.Constraint("DistanceX", 5, 3, 11, 3, Q("21.763201 mm")),
    Sketcher.Constraint("DistanceX", 7, 3, 11, 3, Q("68.746398 mm")),
    Sketcher.Constraint("DistanceY", 13, 3, 15, 3, Q("17.815298 mm")),
    Sketcher.Constraint("DistanceY", 11, 3, 15, 3, Q("17.9623 mm")),
    Sketcher.Constraint("DistanceY", 3, 3, 20, 3, Q("28.9172 mm")),
    Sketcher.Constraint("DistanceX", 20, 3, 22, 3, Q("40.032099 mm")),
    Sketcher.Constraint("DistanceY", 28, 3, 30, 3, Q("9.751401 mm")),
    Sketcher.Constraint("DistanceX", 24, 3, 30, 3, Q("4.3802 mm")),
    Sketcher.Constraint("DistanceY", 7, 3, 1, 2, Q("14.064099 mm")),
    Sketcher.Constraint("DistanceX", 8, 2, 6, 2, Q("25.841899 mm")),
    Sketcher.Constraint("DistanceY", 6, 2, 8, 2, Q("18.163399 mm")),
    Sketcher.Constraint("DistanceY", 15, 3, 14, 2, Q("1.058699 mm")),
    Sketcher.Constraint("DistanceY", 11, 3, 17, 1, Q("8.388198 mm")),
    Sketcher.Constraint("DistanceY", 23, 2, 24, 3, Q("2.440898 mm")),
    Sketcher.Constraint("Distance", 6, Q("55.572921 mm")),
    Sketcher.Constraint("Distance", 16, Q("58.90584 mm")),
    Sketcher.Constraint("Distance", 21, Q("41.25033 mm")),
    Sketcher.Constraint("DistanceX", -1, 1, 3, 3, Q("56.82595 mm")),
    Sketcher.Constraint("DistanceY", 7, 3, -1, 1, Q("55.972139 mm")),
    Sketcher.Constraint("DistanceX", 9, 3, -1, 1, Q("24.31947 mm")),
    Sketcher.Constraint("DistanceY", 22, 3, -1, 1, Q("30.068721 mm")),
    Sketcher.Constraint("DistanceX", -1, 1, 28, 3, Q("184.126442 mm")),
    Sketcher.Constraint("DistanceX", -1, 1, 0, 1, Q("17.44177 mm")),
    Sketcher.Constraint("DistanceY", 0, 1, -1, 1, Q("42.84177 mm")),
    Sketcher.Constraint("DistanceX", -1, 1, 1, 2, Q("16.50804 mm")),
    Sketcher.Constraint("DistanceX", -1, 1, 2, 2, Q("57.14481 mm")),
    Sketcher.Constraint("DistanceX", -1, 1, 3, 1, Q("65.290752 mm")),
    Sketcher.Constraint("DistanceY", 4, 2, -1, 1, Q("97.954188 mm")),
    Sketcher.Constraint("DistanceY", 5, 1, -1, 1, Q("106.412981 mm")),
    Sketcher.Constraint("DistanceY", 10, 2, -1, 1, Q("42.32325 mm")),
    Sketcher.Constraint("DistanceX", -1, 1, 12, 2, Q("0.918659 mm")),
    Sketcher.Constraint("DistanceX", -1, 1, 15, 1, Q("7.65136 mm")),
    Sketcher.Constraint("DistanceY", 18, 2, -1, 1, Q("147.37205 mm")),
    Sketcher.Constraint("DistanceY", 20, 1, -1, 1, Q("34.051728 mm")),
    Sketcher.Constraint("DistanceY", 24, 1, -1, 1, Q("68.707281 mm")),
    Sketcher.Constraint("DistanceX", -1, 1, 26, 1, Q("190.177409 mm")),
    Sketcher.Constraint("DistanceX", -1, 1, 27, 2, Q("184.156778 mm")),
    Sketcher.Constraint("DistanceY", 30, 1, -1, 1, Q("122.230292 mm")),
    Sketcher.Constraint("DistanceX", 24, 3, 26, 3, Q("6.338348 mm")),
    Sketcher.Constraint("DistanceY", 26, 3, 20, 3, Q("90.830128 mm")),
    Sketcher.Constraint("DistanceX", 7, 1, 9, 3, Q("0.838518 mm")),
    Sketcher.Constraint("DistanceX", 8, 2, 9, 1, Q("0.266971 mm")),
    Sketcher.Constraint("DistanceY", 11, 1, 11, 3, Q("6.344059 mm")),
    Sketcher.Constraint("DistanceY", 13, 3, 13, 1, Q("3.871641 mm")),
    Sketcher.Constraint("DistanceY", 19, 2, 20, 3, Q("5.60891 mm")),
    Sketcher.Constraint("DistanceY", 24, 3, 22, 1, Q("32.215652 mm")),
    Sketcher.Constraint("DistanceX", 26, 3, 25, 2, Q("4.527358 mm")),
    Sketcher.Constraint("DistanceX", 28, 1, 28, 3, Q("2.831619 mm")),
])
pocket1 = body.newObject("PartDesign::Pocket", "Pocket")
pocket1.Profile = sketch5
pocket1.Type = "ThroughAll"
pocket1.Reversed = True

sketch6 = body.newObject("Sketcher::SketchObject", "Sketch005")
sketch6.AttachmentSupport = (doc.getObject("XZ_Plane"), [""])
sketch6.MapMode = "FlatFace"
sketch6.AttachmentOffset = App.Placement(App.Vector(0, 0, 0.1875 * 25.4), App.Rotation())
sketch6.addGeometry([
    Part.LineSegment(App.Vector(-72, -159, 0), App.Vector(-80, -166, 0)),
    Part.ArcOfCircle(Part.Circle(App.Vector(-55, -127, 0), App.Vector(0, 0, 1), 46), math.radians(-123), math.radians(-99)),
    Part.LineSegment(App.Vector(-61, -172, 0), App.Vector(-61, -164, 0)),
    Part.ArcOfCircle(Part.Circle(App.Vector(-68, -164, 0), App.Vector(0, 0, 1), 6), math.radians(132), math.radians(360)),
    Part.LineSegment(App.Vector(-48, -164, 0), App.Vector(-48, -173, 0)),
    Part.LineSegment(App.Vector(-48, -173, 0), App.Vector(-35, -172, 0)),
    Part.LineSegment(App.Vector(-35, -172, 0), App.Vector(-35, -164, 0)),
    Part.ArcOfCircle(Part.Circle(App.Vector(-41, -164, 0), App.Vector(0, 0, 1), 6), math.radians(180), math.radians(360)),
], False)
sketch6.addConstraint([
    Sketcher.Constraint("Coincident", 0, 2, 1, 1),
    Sketcher.Constraint("Coincident", 1, 2, 2, 1),
    Sketcher.Constraint("Tangent", 2, 2, 3, 2),
    Sketcher.Constraint("Tangent", 3, 1, 0, 1),
    Sketcher.Constraint("Coincident", 4, 2, 5, 1),
    Sketcher.Constraint("Coincident", 5, 2, 6, 1),
    Sketcher.Constraint("Tangent", 6, 2, 7, 2),
    Sketcher.Constraint("Tangent", 7, 1, 4, 1),
    Sketcher.Constraint("Vertical", 2),
    Sketcher.Constraint("Vertical", 4),
    Sketcher.Constraint("Vertical", 6),
    Sketcher.Constraint("Equal", 3, 7),
    Sketcher.Constraint("Horizontal", 3, 3, 7, 3),
    Sketcher.Constraint("Radius", 1, Q("1.81 in")),
    Sketcher.Constraint("DistanceY", 1, 3, -1, 1, Q("5 in")),
    Sketcher.Constraint("DistanceX", 1, 3, -1, 1, Q("2.15 in")),
    Sketcher.Constraint("Radius", 3, Q("6.5 mm")),
    Sketcher.Constraint("DistanceY", 6, 1, 6, 2, Q("8.467252 mm")),
    Sketcher.Constraint("Distance", 0, Q("9.982181 mm")),
    Sketcher.Constraint("DistanceY", 2, 1, 2, 2, Q("8.814496 mm")),
    Sketcher.Constraint("DistanceY", 4, 2, 4, 1, Q("9.029966 mm")),
    Sketcher.Constraint("DistanceX", 0, 2, -1, 1, Q("79.713449 mm")),
    Sketcher.Constraint("DistanceX", 3, 3, 7, 3, Q("26.677571 mm")),
])
pocket2 = body.newObject("PartDesign::Pocket", "Pocket001")
pocket2.Profile = sketch6
pocket2.Type = "ThroughAll"
doc.recompute()

fillet = body.newObject("PartDesign::Fillet", "Fillet")
fillet.Base = (pocket2, edges_at(pocket2, [
    (-61.449, 0, -172.463),
    (-79.713, 0, -165.515),
    (-34.771, 0, -172.115),
    (-47.771, 0, -172.678),
]))
fillet.Radius = Q("0.1 in")

doc.recompute()
